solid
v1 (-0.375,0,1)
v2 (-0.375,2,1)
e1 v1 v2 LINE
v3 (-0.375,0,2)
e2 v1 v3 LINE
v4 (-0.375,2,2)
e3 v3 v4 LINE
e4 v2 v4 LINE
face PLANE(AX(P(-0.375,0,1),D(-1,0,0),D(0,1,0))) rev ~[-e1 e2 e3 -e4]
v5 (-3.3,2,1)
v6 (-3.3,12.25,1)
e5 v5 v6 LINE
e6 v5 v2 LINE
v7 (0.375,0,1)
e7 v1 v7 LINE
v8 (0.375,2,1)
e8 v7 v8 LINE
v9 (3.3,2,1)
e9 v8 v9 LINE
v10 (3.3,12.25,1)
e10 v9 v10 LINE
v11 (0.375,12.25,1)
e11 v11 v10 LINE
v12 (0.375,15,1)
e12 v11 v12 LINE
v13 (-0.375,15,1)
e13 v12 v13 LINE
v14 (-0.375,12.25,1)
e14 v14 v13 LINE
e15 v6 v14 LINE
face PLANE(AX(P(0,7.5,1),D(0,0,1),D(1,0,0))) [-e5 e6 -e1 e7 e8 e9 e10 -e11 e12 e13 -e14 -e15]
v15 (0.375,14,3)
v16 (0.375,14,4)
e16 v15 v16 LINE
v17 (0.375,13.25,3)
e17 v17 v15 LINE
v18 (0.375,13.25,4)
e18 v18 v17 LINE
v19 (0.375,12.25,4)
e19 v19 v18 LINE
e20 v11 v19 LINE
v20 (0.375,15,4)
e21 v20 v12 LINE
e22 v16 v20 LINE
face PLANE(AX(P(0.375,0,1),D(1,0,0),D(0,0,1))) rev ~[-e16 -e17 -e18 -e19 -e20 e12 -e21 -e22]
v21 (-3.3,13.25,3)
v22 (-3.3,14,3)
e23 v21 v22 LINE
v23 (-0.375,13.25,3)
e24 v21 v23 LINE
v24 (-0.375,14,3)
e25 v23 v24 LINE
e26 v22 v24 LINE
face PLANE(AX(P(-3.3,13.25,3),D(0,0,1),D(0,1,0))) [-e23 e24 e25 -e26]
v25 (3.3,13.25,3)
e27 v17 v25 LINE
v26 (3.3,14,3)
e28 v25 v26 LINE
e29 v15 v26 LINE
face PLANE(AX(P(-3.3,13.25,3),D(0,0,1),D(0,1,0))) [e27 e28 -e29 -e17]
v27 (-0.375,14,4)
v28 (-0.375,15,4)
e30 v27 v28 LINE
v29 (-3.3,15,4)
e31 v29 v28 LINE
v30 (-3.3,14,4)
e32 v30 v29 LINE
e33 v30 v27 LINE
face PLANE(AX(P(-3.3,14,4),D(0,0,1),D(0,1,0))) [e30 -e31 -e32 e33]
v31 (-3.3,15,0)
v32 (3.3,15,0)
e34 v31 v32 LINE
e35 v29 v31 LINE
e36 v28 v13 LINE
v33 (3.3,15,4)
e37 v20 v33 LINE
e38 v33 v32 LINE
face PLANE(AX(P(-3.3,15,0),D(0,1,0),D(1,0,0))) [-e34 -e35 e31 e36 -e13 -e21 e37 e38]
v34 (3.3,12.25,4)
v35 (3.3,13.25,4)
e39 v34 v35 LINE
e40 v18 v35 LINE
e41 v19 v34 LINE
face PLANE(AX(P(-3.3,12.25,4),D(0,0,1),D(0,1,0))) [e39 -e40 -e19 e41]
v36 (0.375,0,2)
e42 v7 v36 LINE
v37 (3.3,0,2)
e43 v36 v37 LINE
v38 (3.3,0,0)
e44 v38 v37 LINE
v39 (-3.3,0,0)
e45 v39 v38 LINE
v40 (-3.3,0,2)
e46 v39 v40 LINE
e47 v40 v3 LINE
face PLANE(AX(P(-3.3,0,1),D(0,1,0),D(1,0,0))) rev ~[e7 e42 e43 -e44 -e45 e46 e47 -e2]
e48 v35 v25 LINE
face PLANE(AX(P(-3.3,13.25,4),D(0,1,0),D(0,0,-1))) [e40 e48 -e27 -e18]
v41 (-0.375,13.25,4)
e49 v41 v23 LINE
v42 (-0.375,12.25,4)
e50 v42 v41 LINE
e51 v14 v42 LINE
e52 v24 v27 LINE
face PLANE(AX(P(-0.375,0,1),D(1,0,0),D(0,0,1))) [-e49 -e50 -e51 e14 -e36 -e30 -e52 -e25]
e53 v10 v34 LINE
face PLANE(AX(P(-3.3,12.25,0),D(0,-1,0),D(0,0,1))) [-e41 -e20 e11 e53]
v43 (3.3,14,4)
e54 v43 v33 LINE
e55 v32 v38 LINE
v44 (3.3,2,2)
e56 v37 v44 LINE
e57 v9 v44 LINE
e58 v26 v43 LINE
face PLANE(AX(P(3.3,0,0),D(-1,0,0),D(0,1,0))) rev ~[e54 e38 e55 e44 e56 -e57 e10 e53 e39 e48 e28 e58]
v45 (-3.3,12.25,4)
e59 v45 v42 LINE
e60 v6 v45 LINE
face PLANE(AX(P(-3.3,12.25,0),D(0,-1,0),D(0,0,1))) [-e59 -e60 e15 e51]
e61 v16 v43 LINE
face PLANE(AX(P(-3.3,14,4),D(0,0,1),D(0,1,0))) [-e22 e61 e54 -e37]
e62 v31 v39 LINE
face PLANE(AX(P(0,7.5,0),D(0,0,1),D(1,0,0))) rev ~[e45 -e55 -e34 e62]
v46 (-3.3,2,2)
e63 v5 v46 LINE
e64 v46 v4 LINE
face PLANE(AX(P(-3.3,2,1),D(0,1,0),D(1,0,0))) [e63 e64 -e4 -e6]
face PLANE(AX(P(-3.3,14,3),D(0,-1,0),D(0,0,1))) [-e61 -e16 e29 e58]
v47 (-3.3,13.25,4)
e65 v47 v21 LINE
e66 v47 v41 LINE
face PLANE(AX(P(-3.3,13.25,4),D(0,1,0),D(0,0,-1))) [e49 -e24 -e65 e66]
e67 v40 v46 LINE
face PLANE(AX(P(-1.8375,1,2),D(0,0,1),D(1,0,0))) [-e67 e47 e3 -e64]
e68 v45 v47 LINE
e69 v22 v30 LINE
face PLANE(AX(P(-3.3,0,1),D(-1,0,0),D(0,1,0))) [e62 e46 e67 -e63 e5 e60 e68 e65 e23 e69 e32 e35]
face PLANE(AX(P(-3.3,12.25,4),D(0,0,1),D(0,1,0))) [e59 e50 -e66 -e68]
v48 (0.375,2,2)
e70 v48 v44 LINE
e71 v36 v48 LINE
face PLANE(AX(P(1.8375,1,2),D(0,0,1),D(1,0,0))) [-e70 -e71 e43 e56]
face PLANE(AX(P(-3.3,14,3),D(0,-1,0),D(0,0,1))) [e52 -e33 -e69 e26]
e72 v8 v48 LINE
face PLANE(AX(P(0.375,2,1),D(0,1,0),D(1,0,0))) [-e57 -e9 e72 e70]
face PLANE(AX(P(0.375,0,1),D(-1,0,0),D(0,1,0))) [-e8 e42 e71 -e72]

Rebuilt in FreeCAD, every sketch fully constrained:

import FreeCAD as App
import Part
import Sketcher

doc = App.newDocument("Part")
body = doc.addObject("PartDesign::Body", "Body")

sketch1 = body.newObject("Sketcher::SketchObject", "Sketch")
sketch1.AttachmentSupport = (doc.getObject("XY_Plane"), [""])
sketch1.MapMode = "FlatFace"
sketch1.addGeometry([
    Part.LineSegment(App.Vector(-3, 15, 0), App.Vector(-3, 0, 0)),
    Part.LineSegment(App.Vector(-3, 0, 0), App.Vector(3, 0, 0)),
    Part.LineSegment(App.Vector(3, 0, 0), App.Vector(3, 15, 0)),
    Part.LineSegment(App.Vector(3, 15, 0), App.Vector(-3, 15, 0)),
], False)
sketch1.addConstraint([
    Sketcher.Constraint("Coincident", 0, 2, 1, 1),
    Sketcher.Constraint("Coincident", 1, 2, 2, 1),
    Sketcher.Constraint("Coincident", 2, 2, 3, 1),
    Sketcher.Constraint("Coincident", 3, 2, 0, 1),
    Sketcher.Constraint("Vertical", 0),
    Sketcher.Constraint("Horizontal", 1),
    Sketcher.Constraint("Vertical", 2),
    Sketcher.Constraint("Horizontal", 3),
    Sketcher.Constraint("Symmetric", 0, 2, 1, 2, -1, 1),
    Sketcher.Constraint("DistanceY", 0, 2, 0, 1, 15.0),
    Sketcher.Constraint("DistanceX", 1, 1, 1, 2, 6.6),
])
pad1 = body.newObject("PartDesign::Pad", "Pad")
pad1.Profile = sketch1
pad1.Length = 1

sketch2 = body.newObject("Sketcher::SketchObject", "Sketch001")
sketch2.AttachmentSupport = (doc.getObject("XY_Plane"), [""])
sketch2.MapMode = "FlatFace"
sketch2.AttachmentOffset = App.Placement(App.Vector(0, 0, 1), App.Rotation())
sketch2.addGeometry([
    Part.LineSegment(App.Vector(-3.3, 2, 0), App.Vector(-3.3, 0, 0)),
    Part.LineSegment(App.Vector(-3.3, 0, 0), App.Vector(-0.4, 0, 0)),
    Part.LineSegment(App.Vector(-0.4, 0, 0), App.Vector(-0.4, 2, 0)),
    Part.LineSegment(App.Vector(-0.4, 2, 0), App.Vector(-3.3, 2, 0)),
    Part.LineSegment(App.Vector(0.4, 2, 0), App.Vector(0.4, 0, 0)),
    Part.LineSegment(App.Vector(0.4, 0, 0), App.Vector(3.3, 0, 0)),
    Part.LineSegment(App.Vector(3.3, 0, 0), App.Vector(3.3, 2, 0)),
    Part.LineSegment(App.Vector(3.3, 2, 0), App.Vector(0.4, 2, 0)),
], False)
sketch2.addConstraint([
    Sketcher.Constraint("Coincident", 0, 2, 1, 1),
    Sketcher.Constraint("Coincident", 1, 2, 2, 1),
    Sketcher.Constraint("Coincident", 2, 2, 3, 1),
    Sketcher.Constraint("Coincident", 3, 2, 0, 1),
    Sketcher.Constraint("Coincident", 4, 2, 5, 1),
    Sketcher.Constraint("Coincident", 5, 2, 6, 1),
    Sketcher.Constraint("Coincident", 6, 2, 7, 1),
    Sketcher.Constraint("Coincident", 7, 2, 4, 1),
    Sketcher.Constraint("Vertical", 0),
    Sketcher.Constraint("Horizontal", 1),
    Sketcher.Constraint("Vertical", 2),
    Sketcher.Constraint("Horizontal", 3),
    Sketcher.Constraint("Vertical", 4),
    Sketcher.Constraint("Horizontal", 5),
    Sketcher.Constraint("Vertical", 6),
    Sketcher.Constraint("Horizontal", 7),
    Sketcher.Constraint("Symmetric", 1, 2, 4, 2, -1, 1),
    Sketcher.Constraint("Symmetric", 0, 2, 5, 2, -2),
    Sketcher.Constraint("Horizontal", 3, 2, 6, 2),
    Sketcher.Constraint("DistanceY", 0, 2, 0, 1, 2.0),
    Sketcher.Constraint("DistanceX", 0, 2, -1, 1, 3.3),
    Sketcher.Constraint("DistanceX", 1, 1, 1, 2, 2.925),
])
pad2 = body.newObject("PartDesign::Pad", "Pad001")
pad2.Profile = sketch2
pad2.Length = 1

sketch3 = body.newObject("Sketcher::SketchObject", "Sketch002")
sketch3.AttachmentSupport = (doc.getObject("YZ_Plane"), [""])
sketch3.MapMode = "FlatFace"
sketch3.AttachmentOffset = App.Placement(App.Vector(0, 0, -3.3), App.Rotation())
sketch3.addGeometry([
    Part.LineSegment(App.Vector(15, 0, 0), App.Vector(12.2, 0, 0)),
    Part.LineSegment(App.Vector(12.2, 0, 0), App.Vector(12.2, 4, 0)),
    Part.LineSegment(App.Vector(12.2, 4, 0), App.Vector(13.2, 4, 0)),
    Part.LineSegment(App.Vector(13.2, 4, 0), App.Vector(13.2, 3, 0)),
    Part.LineSegment(App.Vector(13.2, 3, 0), App.Vector(14, 3, 0)),
    Part.LineSegment(App.Vector(14, 3, 0), App.Vector(14, 4, 0)),
    Part.LineSegment(App.Vector(14, 4, 0), App.Vector(15, 4, 0)),
    Part.LineSegment(App.Vector(15, 4, 0), App.Vector(15, 0, 0)),
], False)
sketch3.addConstraint([
    Sketcher.Constraint("Coincident", 0, 2, 1, 1),
    Sketcher.Constraint("Coincident", 1, 2, 2, 1),
    Sketcher.Constraint("Coincident", 2, 2, 3, 1),
    Sketcher.Constraint("Coincident", 3, 2, 4, 1),
    Sketcher.Constraint("Coincident", 4, 2, 5, 1),
    Sketcher.Constraint("Coincident", 5, 2, 6, 1),
    Sketcher.Constraint("Coincident", 6, 2, 7, 1),
    Sketcher.Constraint("Coincident", 7, 2, 0, 1),
    Sketcher.Constraint("Horizontal", 0),
    Sketcher.Constraint("Vertical", 1),
    Sketcher.Constraint("Horizontal", 2),
    Sketcher.Constraint("Vertical", 3),
    Sketcher.Constraint("Horizontal", 4),
    Sketcher.Constraint("Vertical", 5),
    Sketcher.Constraint("Horizontal", 6),
    Sketcher.Constraint("Vertical", 7),
    Sketcher.Constraint("PointOnObject", 0, 2, -1),
    Sketcher.Constraint("Horizontal", 2, 2, 5, 2),
    Sketcher.Constraint("Equal", 2, 6),
    Sketcher.Constraint("Equal", 6, 3),
    Sketcher.Constraint("DistanceX", 2, 1, 2, 2, 1.0),
    Sketcher.Constraint("DistanceY", 1, 1, 1, 2, 4.0),
    Sketcher.Constraint("DistanceX", -1, 1, 4, 2, 14.0),
    Sketcher.Constraint("DistanceX", 0, 2, 0, 1, 2.75),
])
pad3 = body.newObject("PartDesign::Pad", "Pad002")
pad3.Profile = sketch3
pad3.Length = 6.6

sketch4 = body.newObject("Sketcher::SketchObject", "Sketch003")
sketch4.AttachmentSupport = (doc.getObject("XZ_Plane"), [""])
sketch4.MapMode = "FlatFace"
sketch4.addGeometry([
    Part.LineSegment(App.Vector(-0.4, 4, 0), App.Vector(-0.4, 1, 0)),
    Part.LineSegment(App.Vector(-0.4, 1, 0), App.Vector(0.4, 1, 0)),
    Part.LineSegment(App.Vector(0.4, 1, 0), App.Vector(0.4, 4, 0)),
    Part.LineSegment(App.Vector(0.4, 4, 0), App.Vector(-0.4, 4, 0)),
], False)
sketch4.addConstraint([
    Sketcher.Constraint("Coincident", 0, 2, 1, 1),
    Sketcher.Constraint("Coincident", 1, 2, 2, 1),
    Sketcher.Constraint("Coincident", 2, 2, 3, 1),
    Sketcher.Constraint("Coincident", 3, 2, 0, 1),
    Sketcher.Constraint("Vertical", 0),
    Sketcher.Constraint("Horizontal", 1),
    Sketcher.Constraint("Vertical", 2),
    Sketcher.Constraint("Horizontal", 3),
    Sketcher.Constraint("DistanceY", 0, 2, 0, 1, 3.0),
    Sketcher.Constraint("DistanceY", -1, 1, 0, 2, 1.0),
    Sketcher.Constraint("DistanceX", 1, 1, 1, 2, 0.75),
    Sketcher.Constraint("DistanceX", 0, 2, -1, 1, 0.375),
])
pocket1 = body.newObject("PartDesign::Pocket", "Pocket")
pocket1.Profile = sketch4
pocket1.Type = "ThroughAll"

doc.recompute()
